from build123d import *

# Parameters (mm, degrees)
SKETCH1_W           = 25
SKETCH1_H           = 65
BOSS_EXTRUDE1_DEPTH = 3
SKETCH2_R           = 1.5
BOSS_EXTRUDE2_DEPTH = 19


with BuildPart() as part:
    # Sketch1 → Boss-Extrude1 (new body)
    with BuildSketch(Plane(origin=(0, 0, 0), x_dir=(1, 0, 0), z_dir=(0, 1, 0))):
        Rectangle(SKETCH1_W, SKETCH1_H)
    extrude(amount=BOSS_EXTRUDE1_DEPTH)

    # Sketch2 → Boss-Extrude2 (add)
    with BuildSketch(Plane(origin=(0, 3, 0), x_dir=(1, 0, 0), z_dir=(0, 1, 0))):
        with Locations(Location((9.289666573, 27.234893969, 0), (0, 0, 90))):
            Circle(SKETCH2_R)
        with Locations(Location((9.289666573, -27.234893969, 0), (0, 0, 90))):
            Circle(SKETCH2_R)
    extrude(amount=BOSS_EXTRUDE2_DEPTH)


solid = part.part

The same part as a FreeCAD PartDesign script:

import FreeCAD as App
import Part
import Sketcher
Q = App.Units.Quantity


def add_polygon(sketch, points):
    """Adds a closed chain of lines whose ends are joined by coincident constraints."""
    first, n = sketch.GeometryCount, len(points)
    for a, b in zip(points, points[1:] + points[:1]):
        sketch.addGeometry(Part.LineSegment(App.Vector(*a, 0), App.Vector(*b, 0)), False)
    for i in range(n):
        sketch.addConstraint(Sketcher.Constraint("Coincident", first + i, 2, first + (i + 1) % n, 1))

doc = App.newDocument("Part")
body = doc.addObject("PartDesign::Body", "Body")

sketch1 = doc.addObject("Sketcher::SketchObject", "Sketch")
body.addObject(sketch1)
sketch1.AttachmentSupport = (doc.XZ_Plane, [""])
sketch1.MapMode = "FlatFace"
add_polygon(sketch1, [(-12, -32), (-12, 32), (12, 32), (12, -32)])
sketch1.addConstraint(Sketcher.Constraint("Vertical", 0))
sketch1.addConstraint(Sketcher.Constraint("Horizontal", 1))
sketch1.addConstraint(Sketcher.Constraint("Vertical", 2))
sketch1.addConstraint(Sketcher.Constraint("Horizontal", 3))
sketch1.addConstraint(Sketcher.Constraint("Symmetric", 0, 2, 2, 2, -1, 1))
sketch1.addConstraint(Sketcher.Constraint("DistanceX", 1, 1, 1, 2, Q("25 mm")))
sketch1.addConstraint(Sketcher.Constraint("DistanceY", 0, 1, 0, 2, Q("65 mm")))
pad1 = doc.addObject("PartDesign::Pad", "Pad")
body.addObject(pad1)
pad1.Profile = sketch1
pad1.Length = 3
pad1.Reversed = True

sketch2 = doc.addObject("Sketcher::SketchObject", "Sketch001")
body.addObject(sketch2)
sketch2.AttachmentSupport = (doc.XZ_Plane, [""])
sketch2.MapMode = "FlatFace"
sketch2.AttachmentOffset = App.Placement(App.Vector(0, 0, -3), App.Rotation())
sketch2.addGeometry(Part.Circle(App.Vector(9.3, -27.2, 0), App.Vector(0, 0, 1), 1.5), False)
sketch2.addGeometry(Part.Circle(App.Vector(9.3, 27.2, 0), App.Vector(0, 0, 1), 1.5), False)
sketch2.addConstraint(Sketcher.Constraint("Equal", 0, 1))
sketch2.addConstraint(Sketcher.Constraint("Symmetric", 0, 3, 1, 3, -1))
sketch2.addConstraint(Sketcher.Constraint("Diameter", 0, Q("3 mm")))
sketch2.addConstraint(Sketcher.Constraint("DistanceX", -1, 1, 0, 3, Q("9.289667 mm")))
sketch2.addConstraint(Sketcher.Constraint("DistanceY", 0, 3, -1, 1, Q("27.234894 mm")))
pad2 = doc.addObject("PartDesign::Pad", "Pad001")
body.addObject(pad2)
pad2.Profile = sketch2
pad2.Length = 19
pad2.Reversed = True

doc.recompute()
